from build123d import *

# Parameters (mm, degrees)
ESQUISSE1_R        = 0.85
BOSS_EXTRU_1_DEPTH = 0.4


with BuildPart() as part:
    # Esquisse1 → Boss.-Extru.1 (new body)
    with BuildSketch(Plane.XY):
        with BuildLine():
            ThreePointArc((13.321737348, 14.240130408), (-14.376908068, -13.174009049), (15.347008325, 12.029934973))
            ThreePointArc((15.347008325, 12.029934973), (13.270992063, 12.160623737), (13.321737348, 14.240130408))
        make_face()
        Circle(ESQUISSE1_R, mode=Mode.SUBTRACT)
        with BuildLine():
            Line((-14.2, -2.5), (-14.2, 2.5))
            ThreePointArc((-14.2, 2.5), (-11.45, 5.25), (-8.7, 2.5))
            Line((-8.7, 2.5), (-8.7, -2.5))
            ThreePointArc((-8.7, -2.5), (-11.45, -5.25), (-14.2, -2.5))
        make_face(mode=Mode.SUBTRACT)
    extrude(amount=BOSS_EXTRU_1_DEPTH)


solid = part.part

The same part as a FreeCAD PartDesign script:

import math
import FreeCAD as App
import Part
import Sketcher

V = App.Vector
Q = App.Units.Quantity

doc = App.newDocument("Part")
body = doc.addObject("PartDesign::Body", "Body")

sketch1 = body.newObject("Sketcher::SketchObject", "Sketch")
sketch1.AttachmentSupport = (doc.getObject("XY_Plane"), [""])
sketch1.MapMode = "FlatFace"
sketch1.addGeometry(Part.ArcOfCircle(Part.Circle(V(0, 0, 0), V(0, 0, 1), 19.5), math.radians(47), math.radians(398)), False)
sketch1.addGeometry(Part.ArcOfCircle(Part.Circle(V(14.4, 13.2, 0), V(0, 0, 1), 1.5), math.radians(135), math.radians(310)), False)
sketch1.addGeometry(Part.ArcOfCircle(Part.Circle(V(-11.4, -2.5, 0), V(0, 0, 1), 2.8), math.radians(180), math.radians(360)), False)
sketch1.addGeometry(Part.LineSegment(V(-14.2, -2.5, 0), V(-14.2, 2.5, 0)), False)
sketch1.addGeometry(Part.ArcOfCircle(Part.Circle(V(-11.4, 2.5, 0), V(0, 0, 1), 2.8), math.radians(0), math.radians(180)), False)
sketch1.addGeometry(Part.LineSegment(V(-8.7, 2.5, 0), V(-8.7, -2.5, 0)), False)
sketch1.addGeometry(Part.Circle(V(0, 0, 0), V(0, 0, 1), 0.8), False)
sketch1.addConstraint(Sketcher.Constraint("Coincident", 0, 1, 1, 1))
sketch1.addConstraint(Sketcher.Constraint("Coincident", 1, 2, 0, 2))
sketch1.addConstraint(Sketcher.Constraint("Tangent", 2, 1, 3, 1))
sketch1.addConstraint(Sketcher.Constraint("Tangent", 3, 2, 4, 2))
sketch1.addConstraint(Sketcher.Constraint("Tangent", 4, 1, 5, 1))
sketch1.addConstraint(Sketcher.Constraint("Tangent", 5, 2, 2, 2))
sketch1.addConstraint(Sketcher.Constraint("Vertical", 3))
sketch1.addConstraint(Sketcher.Constraint("Vertical", 5))
sketch1.addConstraint(Sketcher.Constraint("Coincident", 0, 3, -1, 1))
sketch1.addConstraint(Sketcher.Constraint("Coincident", 6, 3, -1, 1))
sketch1.addConstraint(Sketcher.Constraint("Diameter", 6, Q("1.7 mm")))
sketch1.addConstraint(Sketcher.Constraint("Radius", 0, Q("19.5 mm")))
sketch1.addConstraint(Sketcher.Constraint("Radius", 1, Q("1.5 mm")))
sketch1.addConstraint(Sketcher.Constraint("DistanceY", 3, 1, 3, 2, Q("5 mm")))
sketch1.addConstraint(Sketcher.Constraint("Radius", 2, Q("2.75 mm")))
sketch1.addConstraint(Sketcher.Constraint("DistanceY", 2, 3, -1, 1, Q("2.5 mm")))
sketch1.addConstraint(Sketcher.Constraint("DistanceX", 2, 1, -1, 1, Q("14.2 mm")))
sketch1.addConstraint(Sketcher.Constraint("DistanceX", 1, 3, 1, 2, Q("0.9701 mm")))
sketch1.addConstraint(Sketcher.Constraint("DistanceX", -1, 1, 1, 3, Q("14.376908 mm")))
pad1 = body.newObject("PartDesign::Pad", "Pad")
pad1.Profile = sketch1
pad1.Length = 0.4

doc.recompute()
